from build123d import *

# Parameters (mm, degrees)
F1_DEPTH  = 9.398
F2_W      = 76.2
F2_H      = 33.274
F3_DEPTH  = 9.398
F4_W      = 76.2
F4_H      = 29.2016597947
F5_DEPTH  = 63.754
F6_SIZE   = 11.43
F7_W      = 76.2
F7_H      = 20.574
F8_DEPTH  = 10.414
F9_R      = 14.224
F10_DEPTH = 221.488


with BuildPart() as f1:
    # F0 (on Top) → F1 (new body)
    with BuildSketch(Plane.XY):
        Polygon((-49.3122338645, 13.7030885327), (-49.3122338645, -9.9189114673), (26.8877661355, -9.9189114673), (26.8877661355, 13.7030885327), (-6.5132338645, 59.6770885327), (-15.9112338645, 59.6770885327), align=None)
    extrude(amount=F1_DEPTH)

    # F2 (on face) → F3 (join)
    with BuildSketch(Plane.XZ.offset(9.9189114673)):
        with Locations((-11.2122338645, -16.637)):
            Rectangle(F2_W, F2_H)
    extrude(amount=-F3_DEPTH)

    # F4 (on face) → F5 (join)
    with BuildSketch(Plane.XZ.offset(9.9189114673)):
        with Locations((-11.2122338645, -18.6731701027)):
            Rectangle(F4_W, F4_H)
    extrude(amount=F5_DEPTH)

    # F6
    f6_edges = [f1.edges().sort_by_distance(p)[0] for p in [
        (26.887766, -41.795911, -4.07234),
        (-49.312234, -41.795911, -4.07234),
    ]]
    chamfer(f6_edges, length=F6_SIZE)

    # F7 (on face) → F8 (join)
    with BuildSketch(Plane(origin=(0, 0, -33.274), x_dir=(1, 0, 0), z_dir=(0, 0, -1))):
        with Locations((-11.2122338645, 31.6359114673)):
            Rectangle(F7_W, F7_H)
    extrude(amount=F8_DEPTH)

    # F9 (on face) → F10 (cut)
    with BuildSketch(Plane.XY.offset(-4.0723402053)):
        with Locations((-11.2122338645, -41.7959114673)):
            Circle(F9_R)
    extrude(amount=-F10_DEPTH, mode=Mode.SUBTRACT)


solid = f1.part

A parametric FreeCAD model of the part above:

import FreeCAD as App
import Part
import Sketcher

V = App.Vector
Q = App.Units.Quantity


def edges_at(feature, points):
    """Names of the edges that pass closest to the given points."""
    edges = feature.Shape.Edges
    near = lambda p: min(range(len(edges)), key=lambda i: edges[i].distToShape(Part.Vertex(*p))[0])
    return sorted({f"Edge{near(p) + 1}" for p in points})


def add_polygon(sketch, points):
    """Adds a closed chain of lines whose ends are joined by coincident constraints."""
    first, n = sketch.GeometryCount, len(points)
    for a, b in zip(points, points[1:] + points[:1]):
        sketch.addGeometry(Part.LineSegment(App.Vector(*a, 0), App.Vector(*b, 0)), False)
    for i in range(n):
        sketch.addConstraint(Sketcher.Constraint("Coincident", first + i, 2, first + (i + 1) % n, 1))

doc = App.newDocument("Part")
params = doc.addObject("Spreadsheet::Sheet", "Params")
for row, (alias, value) in enumerate([
    ("sketch1_width", "3 in"),
    ("sketch1_width2", "0.37 in"),
    ("sketch1_height", "0.93 in"),
    ("pad1_length", "0.37 in"),
    ("sketch2_width", "3 in"),
    ("sketch2_height", "1.31 in"),
    ("pad2_length", "0.37 in"),
    ("sketch3_width", "3 in"),
    ("pad3_length", "2.51 in"),
    ("chamfer_size", "0.45 in"),
    ("sketch4_width", "3 in"),
    ("sketch4_height", "0.81 in"),
    ("pad4_length", "0.41 in"),
    ("sketch5_diameter", "1.12 in"),
    ("pocket1_length", "8.72 in"),
], start=1):
    params.set(f"A{row}", alias)
    params.set(f"B{row}", "=" + value)
    params.setAlias(f"B{row}", alias)

body = doc.addObject("PartDesign::Body", "Body")

# Sketch on XY plane
sketch1 = body.newObject("Sketcher::SketchObject", "Sketch")
sketch1.AttachmentSupport = (doc.getObject("XY_Plane"), [""])
sketch1.MapMode = "FlatFace"
add_polygon(sketch1, [(-49, 14), (-49, -10), (27, -10), (27, 14), (-7, 60), (-16, 60)])  # lines 0-5
sketch1.addConstraint(Sketcher.Constraint("Vertical", 0))
sketch1.addConstraint(Sketcher.Constraint("Horizontal", 1))
sketch1.addConstraint(Sketcher.Constraint("Vertical", 2))
sketch1.addConstraint(Sketcher.Constraint("Horizontal", 4))
sketch1.addConstraint(Sketcher.Constraint("Horizontal", 2, 2, 5, 2))
sketch1.addConstraint(Sketcher.Constraint("Equal", 3, 5))
sketch1.addConstraint(Sketcher.Constraint("DistanceX", 1, 1, 1, 2, Q("3 in")))
sketch1.addConstraint(Sketcher.Constraint("DistanceX", 4, 2, 4, 1, Q("0.37 in")))
sketch1.addConstraint(Sketcher.Constraint("DistanceY", 0, 2, 0, 1, Q("0.93 in")))
sketch1.addConstraint(Sketcher.Constraint("DistanceY", 2, 2, 3, 2, Q("1.81 in")))
sketch1.addConstraint(Sketcher.Constraint("DistanceY", 0, 2, -1, 1, 9.918911))
sketch1.addConstraint(Sketcher.Constraint("DistanceX", 0, 2, -1, 1, 49.312234))
sketch1.setExpression("Constraints[12]", "Params.sketch1_width")
sketch1.setExpression("Constraints[13]", "Params.sketch1_width2")
sketch1.setExpression("Constraints[14]", "Params.sketch1_height")
pad1 = body.newObject("PartDesign::Pad", "Pad")
pad1.Profile = sketch1
pad1.setExpression("Length", "Params.pad1_length")

# Sketch on XZ plane
sketch2 = body.newObject("Sketcher::SketchObject", "Sketch001")
sketch2.AttachmentSupport = (doc.getObject("XZ_Plane"), [""])
sketch2.MapMode = "FlatFace"
sketch2.AttachmentOffset = App.Placement(V(0, 0, 9.918911), App.Rotation())
add_polygon(sketch2, [(-49, 0), (-49, -33), (27, -33), (27, 0)])  # lines 0-3
sketch2.addConstraint(Sketcher.Constraint("Vertical", 0))
sketch2.addConstraint(Sketcher.Constraint("Horizontal", 1))
sketch2.addConstraint(Sketcher.Constraint("Vertical", 2))
sketch2.addConstraint(Sketcher.Constraint("Horizontal", 3))
sketch2.addConstraint(Sketcher.Constraint("PointOnObject", 2, 2, -1))
sketch2.addConstraint(Sketcher.Constraint("DistanceX", 1, 1, 1, 2, Q("3 in")))
sketch2.addConstraint(Sketcher.Constraint("DistanceY", 0, 2, 0, 1, Q("1.31 in")))
sketch2.addConstraint(Sketcher.Constraint("DistanceX", 0, 2, -1, 1, 49.312234))
sketch2.setExpression("Constraints[9]", "Params.sketch2_width")
sketch2.setExpression("Constraints[10]", "Params.sketch2_height")
pad2 = body.newObject("PartDesign::Pad", "Pad001")
pad2.Profile = sketch2
pad2.setExpression("Length", "Params.pad2_length")
pad2.Reversed = True

# Sketch on XZ plane
sketch3 = body.newObject("Sketcher::SketchObject", "Sketch002")
sketch3.AttachmentSupport = (doc.getObject("XZ_Plane"), [""])
sketch3.MapMode = "FlatFace"
sketch3.AttachmentOffset = App.Placement(V(0, 0, 9.918911), App.Rotation())
add_polygon(sketch3, [(-49, -4), (-49, -33), (27, -33), (27, -4)])  # lines 0-3
sketch3.addConstraint(Sketcher.Constraint("Vertical", 0))
sketch3.addConstraint(Sketcher.Constraint("Horizontal", 1))
sketch3.addConstraint(Sketcher.Constraint("Vertical", 2))
sketch3.addConstraint(Sketcher.Constraint("Horizontal", 3))
sketch3.addConstraint(Sketcher.Constraint("DistanceX", 1, 1, 1, 2, Q("3 in")))
sketch3.addConstraint(Sketcher.Constraint("DistanceY", 0, 2, -1, 1, Q("1.31 in")))
sketch3.addConstraint(Sketcher.Constraint("DistanceY", 0, 2, 0, 1, 29.20166))
sketch3.addConstraint(Sketcher.Constraint("DistanceX", 0, 2, -1, 1, 49.312234))
sketch3.setExpression("Constraints[8]", "Params.sketch3_width")
pad3 = body.newObject("PartDesign::Pad", "Pad002")
pad3.Profile = sketch3
pad3.setExpression("Length", "Params.pad3_length")
doc.recompute()

chamfer = body.newObject("PartDesign::Chamfer", "Chamfer")
chamfer.Base = (pad3, edges_at(pad3, [(26.888, -41.796, -4.072), (-49.312, -41.796, -4.072)]))
chamfer.setExpression("Size", "Params.chamfer_size")

# Sketch on XY plane
sketch4 = body.newObject("Sketcher::SketchObject", "Sketch003")
sketch4.AttachmentSupport = (doc.getObject("XY_Plane"), [""])
sketch4.MapMode = "FlatFace"
sketch4.AttachmentOffset = App.Placement(V(0, 0, -1.31 * 25.4), App.Rotation())
add_polygon(sketch4, [(-49, -42), (-49, -21), (27, -21), (27, -42)])  # lines 0-3
sketch4.addConstraint(Sketcher.Constraint("Vertical", 0))
sketch4.addConstraint(Sketcher.Constraint("Horizontal", 1))
sketch4.addConstraint(Sketcher.Constraint("Vertical", 2))
sketch4.addConstraint(Sketcher.Constraint("Horizontal", 3))
sketch4.addConstraint(Sketcher.Constraint("DistanceX", 1, 1, 1, 2, Q("3 in")))
sketch4.addConstraint(Sketcher.Constraint("DistanceY", 0, 1, 0, 2, Q("0.81 in")))
sketch4.addConstraint(Sketcher.Constraint("DistanceY", 0, 2, -1, 1, 21.348911))
sketch4.addConstraint(Sketcher.Constraint("DistanceX", 0, 2, -1, 1, 49.312234))
sketch4.setExpression("Constraints[8]", "Params.sketch4_width")
sketch4.setExpression("Constraints[9]", "Params.sketch4_height")
pad4 = body.newObject("PartDesign::Pad", "Pad003")
pad4.Profile = sketch4
pad4.setExpression("Length", "Params.pad4_length")
pad4.Reversed = True

# Sketch on XY plane
sketch5 = body.newObject("Sketcher::SketchObject", "Sketch004")
sketch5.AttachmentSupport = (doc.getObject("XY_Plane"), [""])
sketch5.MapMode = "FlatFace"
sketch5.AttachmentOffset = App.Placement(V(0, 0, -4.07234), App.Rotation())
sketch5.addGeometry(Part.Circle(V(-11, -42, 0), V(0, 0, 1), 14), False)
sketch5.addConstraint(Sketcher.Constraint("Diameter", 0, Q("1.12 in")))
sketch5.addConstraint(Sketcher.Constraint("DistanceY", 0, 3, -1, 1, 41.795911))
sketch5.addConstraint(Sketcher.Constraint("DistanceX", 0, 3, -1, 1, 11.212234))
sketch5.setExpression("Constraints[0]", "Params.sketch5_diameter")
pocket1 = body.newObject("PartDesign::Pocket", "Pocket")
pocket1.Profile = sketch5
pocket1.setExpression("Length", "Params.pocket1_length")

doc.recompute()
